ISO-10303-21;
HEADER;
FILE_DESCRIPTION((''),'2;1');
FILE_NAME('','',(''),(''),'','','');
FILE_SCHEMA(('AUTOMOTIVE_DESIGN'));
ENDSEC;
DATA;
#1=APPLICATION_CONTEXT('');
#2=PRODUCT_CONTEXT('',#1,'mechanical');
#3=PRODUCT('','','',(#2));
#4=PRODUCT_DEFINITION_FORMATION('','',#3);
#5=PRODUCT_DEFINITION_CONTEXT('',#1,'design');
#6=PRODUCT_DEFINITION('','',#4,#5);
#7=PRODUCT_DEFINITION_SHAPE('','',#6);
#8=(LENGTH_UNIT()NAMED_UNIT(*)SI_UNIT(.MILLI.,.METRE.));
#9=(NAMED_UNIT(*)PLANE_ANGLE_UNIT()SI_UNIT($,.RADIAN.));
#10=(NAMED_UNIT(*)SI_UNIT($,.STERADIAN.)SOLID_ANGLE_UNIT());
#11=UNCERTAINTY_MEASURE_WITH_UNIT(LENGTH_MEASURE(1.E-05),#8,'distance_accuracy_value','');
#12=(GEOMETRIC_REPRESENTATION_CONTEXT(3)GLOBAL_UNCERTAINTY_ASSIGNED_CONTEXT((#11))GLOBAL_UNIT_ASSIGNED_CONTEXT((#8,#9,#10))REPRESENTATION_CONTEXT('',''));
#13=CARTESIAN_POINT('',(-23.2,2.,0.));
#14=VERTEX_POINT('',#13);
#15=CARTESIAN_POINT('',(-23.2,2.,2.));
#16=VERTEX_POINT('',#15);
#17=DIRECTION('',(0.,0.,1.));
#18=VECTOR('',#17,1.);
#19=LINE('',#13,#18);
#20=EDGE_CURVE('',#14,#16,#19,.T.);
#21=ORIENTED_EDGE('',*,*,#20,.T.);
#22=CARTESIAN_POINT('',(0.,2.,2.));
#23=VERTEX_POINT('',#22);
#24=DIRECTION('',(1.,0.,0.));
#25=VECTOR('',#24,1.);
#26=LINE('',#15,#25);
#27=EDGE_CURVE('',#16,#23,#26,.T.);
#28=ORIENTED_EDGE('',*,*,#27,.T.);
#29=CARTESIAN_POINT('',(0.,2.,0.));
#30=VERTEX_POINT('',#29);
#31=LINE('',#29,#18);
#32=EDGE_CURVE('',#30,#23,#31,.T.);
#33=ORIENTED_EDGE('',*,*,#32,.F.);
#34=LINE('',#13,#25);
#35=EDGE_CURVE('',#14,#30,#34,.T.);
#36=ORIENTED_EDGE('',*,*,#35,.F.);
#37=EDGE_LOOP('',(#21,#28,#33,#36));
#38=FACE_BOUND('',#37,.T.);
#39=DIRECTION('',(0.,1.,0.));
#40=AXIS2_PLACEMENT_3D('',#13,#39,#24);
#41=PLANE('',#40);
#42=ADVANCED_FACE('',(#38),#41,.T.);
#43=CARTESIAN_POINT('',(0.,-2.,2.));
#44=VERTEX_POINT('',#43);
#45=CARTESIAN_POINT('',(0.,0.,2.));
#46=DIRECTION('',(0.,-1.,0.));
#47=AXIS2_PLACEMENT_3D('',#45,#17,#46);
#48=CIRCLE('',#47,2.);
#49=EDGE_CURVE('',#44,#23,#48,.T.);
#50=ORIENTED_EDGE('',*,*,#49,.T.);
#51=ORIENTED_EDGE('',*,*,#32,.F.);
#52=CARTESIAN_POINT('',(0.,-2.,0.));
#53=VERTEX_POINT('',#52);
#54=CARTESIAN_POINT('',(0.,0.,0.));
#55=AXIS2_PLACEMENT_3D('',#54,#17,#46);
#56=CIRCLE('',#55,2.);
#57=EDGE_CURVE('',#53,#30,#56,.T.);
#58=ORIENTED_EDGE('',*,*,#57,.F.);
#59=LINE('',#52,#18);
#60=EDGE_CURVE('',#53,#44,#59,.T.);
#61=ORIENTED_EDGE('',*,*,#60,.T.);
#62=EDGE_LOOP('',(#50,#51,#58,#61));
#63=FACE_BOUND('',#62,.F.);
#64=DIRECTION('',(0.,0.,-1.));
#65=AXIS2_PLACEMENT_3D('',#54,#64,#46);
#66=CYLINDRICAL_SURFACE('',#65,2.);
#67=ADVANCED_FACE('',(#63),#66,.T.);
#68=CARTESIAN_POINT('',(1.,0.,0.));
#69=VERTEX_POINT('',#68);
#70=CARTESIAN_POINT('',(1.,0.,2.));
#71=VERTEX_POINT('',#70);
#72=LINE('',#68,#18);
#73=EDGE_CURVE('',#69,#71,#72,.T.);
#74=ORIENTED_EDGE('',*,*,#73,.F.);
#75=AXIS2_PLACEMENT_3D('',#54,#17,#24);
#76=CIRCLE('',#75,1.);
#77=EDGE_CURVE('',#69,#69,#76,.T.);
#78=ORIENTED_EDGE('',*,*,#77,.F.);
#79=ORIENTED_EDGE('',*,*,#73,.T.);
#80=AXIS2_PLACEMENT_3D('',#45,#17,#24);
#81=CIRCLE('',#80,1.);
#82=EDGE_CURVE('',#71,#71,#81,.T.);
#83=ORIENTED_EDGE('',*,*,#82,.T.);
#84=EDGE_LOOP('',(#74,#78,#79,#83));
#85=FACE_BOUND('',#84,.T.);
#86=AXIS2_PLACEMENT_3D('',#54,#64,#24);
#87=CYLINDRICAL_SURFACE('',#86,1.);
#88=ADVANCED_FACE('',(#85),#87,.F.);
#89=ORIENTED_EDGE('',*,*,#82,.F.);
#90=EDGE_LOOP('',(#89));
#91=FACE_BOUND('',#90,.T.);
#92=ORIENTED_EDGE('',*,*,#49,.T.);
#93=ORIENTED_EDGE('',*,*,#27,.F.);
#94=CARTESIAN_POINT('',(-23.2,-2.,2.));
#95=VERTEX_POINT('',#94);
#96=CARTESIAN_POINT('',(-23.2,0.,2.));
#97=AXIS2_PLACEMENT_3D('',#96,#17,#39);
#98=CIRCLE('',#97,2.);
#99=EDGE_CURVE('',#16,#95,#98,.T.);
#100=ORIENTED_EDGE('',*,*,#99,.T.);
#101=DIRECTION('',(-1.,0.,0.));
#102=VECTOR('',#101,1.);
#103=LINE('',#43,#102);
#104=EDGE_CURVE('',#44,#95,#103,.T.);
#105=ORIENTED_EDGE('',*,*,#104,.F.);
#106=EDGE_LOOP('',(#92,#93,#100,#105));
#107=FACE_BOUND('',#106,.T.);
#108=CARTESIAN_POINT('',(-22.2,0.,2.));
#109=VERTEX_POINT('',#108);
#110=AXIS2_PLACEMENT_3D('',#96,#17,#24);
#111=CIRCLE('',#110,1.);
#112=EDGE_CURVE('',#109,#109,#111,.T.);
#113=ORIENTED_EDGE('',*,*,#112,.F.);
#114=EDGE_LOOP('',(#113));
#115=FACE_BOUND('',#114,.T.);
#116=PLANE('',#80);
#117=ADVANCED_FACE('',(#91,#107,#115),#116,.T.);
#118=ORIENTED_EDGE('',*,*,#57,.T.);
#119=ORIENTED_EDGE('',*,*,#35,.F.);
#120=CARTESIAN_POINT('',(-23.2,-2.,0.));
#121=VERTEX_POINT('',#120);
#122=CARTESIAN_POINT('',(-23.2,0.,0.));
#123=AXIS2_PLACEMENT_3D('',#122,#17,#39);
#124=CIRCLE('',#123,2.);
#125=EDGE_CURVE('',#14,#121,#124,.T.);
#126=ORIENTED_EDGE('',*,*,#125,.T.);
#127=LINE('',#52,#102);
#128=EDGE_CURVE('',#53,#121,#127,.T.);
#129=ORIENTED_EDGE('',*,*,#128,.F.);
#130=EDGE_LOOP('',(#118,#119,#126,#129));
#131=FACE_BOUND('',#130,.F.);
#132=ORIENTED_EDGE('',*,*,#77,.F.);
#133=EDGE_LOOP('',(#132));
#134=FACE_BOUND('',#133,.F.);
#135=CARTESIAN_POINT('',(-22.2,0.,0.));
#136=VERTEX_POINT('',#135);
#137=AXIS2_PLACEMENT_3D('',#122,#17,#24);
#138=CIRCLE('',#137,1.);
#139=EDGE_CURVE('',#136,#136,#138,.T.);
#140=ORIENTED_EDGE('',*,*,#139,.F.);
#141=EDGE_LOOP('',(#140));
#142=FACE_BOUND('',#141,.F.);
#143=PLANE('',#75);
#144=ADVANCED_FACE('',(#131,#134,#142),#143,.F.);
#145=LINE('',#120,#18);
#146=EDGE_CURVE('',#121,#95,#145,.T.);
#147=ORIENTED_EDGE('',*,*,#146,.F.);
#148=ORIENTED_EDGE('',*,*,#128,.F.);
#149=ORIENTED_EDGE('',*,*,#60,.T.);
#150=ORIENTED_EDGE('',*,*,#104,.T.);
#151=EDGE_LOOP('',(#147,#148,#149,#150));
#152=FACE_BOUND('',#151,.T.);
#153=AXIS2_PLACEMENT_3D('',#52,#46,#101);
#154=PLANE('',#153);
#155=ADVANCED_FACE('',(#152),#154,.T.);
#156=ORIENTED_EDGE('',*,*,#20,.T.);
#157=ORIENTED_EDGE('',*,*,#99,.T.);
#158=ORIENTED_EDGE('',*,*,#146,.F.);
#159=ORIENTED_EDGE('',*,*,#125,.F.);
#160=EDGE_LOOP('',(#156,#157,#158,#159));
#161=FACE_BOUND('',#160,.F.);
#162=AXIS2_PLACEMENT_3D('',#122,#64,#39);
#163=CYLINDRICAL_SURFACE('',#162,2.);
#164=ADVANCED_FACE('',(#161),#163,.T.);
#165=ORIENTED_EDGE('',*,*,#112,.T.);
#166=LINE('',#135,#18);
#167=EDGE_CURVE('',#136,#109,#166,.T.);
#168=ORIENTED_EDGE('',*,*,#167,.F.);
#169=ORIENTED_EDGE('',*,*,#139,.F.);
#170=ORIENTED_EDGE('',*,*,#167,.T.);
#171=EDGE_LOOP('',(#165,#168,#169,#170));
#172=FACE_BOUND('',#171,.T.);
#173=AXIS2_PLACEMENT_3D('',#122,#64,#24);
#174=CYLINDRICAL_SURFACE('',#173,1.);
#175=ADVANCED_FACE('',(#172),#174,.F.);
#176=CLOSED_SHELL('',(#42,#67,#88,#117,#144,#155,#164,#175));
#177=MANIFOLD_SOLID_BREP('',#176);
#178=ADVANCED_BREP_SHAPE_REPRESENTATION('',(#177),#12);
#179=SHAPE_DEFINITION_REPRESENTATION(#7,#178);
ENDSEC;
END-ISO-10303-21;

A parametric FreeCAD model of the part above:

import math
import FreeCAD as App
import Part
import Sketcher
from FreeCAD import Vector

doc = App.newDocument("Part")
params = doc.addObject("Spreadsheet::Sheet", "Params")
for row, (alias, value) in enumerate([
    ("sketch1_diameter", "2 mm"),
    ("sketch1_radius", "2 mm"),
    ("sketch1_width", "23.2 mm"),
    ("pad1_length", "2 mm"),
], start=1):
    params.set(f"A{row}", alias)
    params.set(f"B{row}", "=" + value)
    params.setAlias(f"B{row}", alias)

body = doc.addObject("PartDesign::Body", "Body")

# Sketch on XY plane
sketch1 = doc.addObject("Sketcher::SketchObject", "Sketch")
body.addObject(sketch1)
sketch1.AttachmentSupport = (doc.XY_Plane, [""])
sketch1.MapMode = "FlatFace"
sketch1.addGeometry([
    Part.LineSegment(Vector(0, 2, 0), Vector(-23.2, 2, 0)),  # 0
    Part.ArcOfCircle(Part.Circle(Vector(-23.2, 0, 0), Vector(0, 0, 1), 2), math.radians(90), math.radians(270)),  # 1
    Part.LineSegment(Vector(-23.2, -2, 0), Vector(0, -2, 0)),  # 2
    Part.ArcOfCircle(Part.Circle(Vector(0, 0, 0), Vector(0, 0, 1), 2), math.radians(-90), math.radians(90)),  # 3
    Part.Circle(Vector(-23.2, 0, 0), Vector(0, 0, 1), 1),  # 4
    Part.Circle(Vector(0, 0, 0), Vector(0, 0, 1), 1),  # 5
], False)
sketch1.addConstraint([
    Sketcher.Constraint("Tangent", 0, 2, 1, 1),
    Sketcher.Constraint("Tangent", 1, 2, 2, 1),
    Sketcher.Constraint("Tangent", 2, 2, 3, 1),
    Sketcher.Constraint("Tangent", 3, 2, 0, 1),
    Sketcher.Constraint("Horizontal", 0),
    Sketcher.Constraint("Horizontal", 2),
    Sketcher.Constraint("Coincident", 3, 3, -1, 1),
    Sketcher.Constraint("Coincident", 5, 3, -1, 1),
    Sketcher.Constraint("Coincident", 4, 3, 1, 3),
    Sketcher.Constraint("Equal", 4, 5),
    Sketcher.Constraint("Diameter", 4, 2.0),
    Sketcher.Constraint("Radius", 1, 2.0),
    Sketcher.Constraint("DistanceX", 0, 2, 0, 1, 23.2),
])
sketch1.setExpression("Constraints[10]", "Params.sketch1_diameter")
sketch1.setExpression("Constraints[11]", "Params.sketch1_radius")
sketch1.setExpression("Constraints[12]", "Params.sketch1_width")
pad1 = doc.addObject("PartDesign::Pad", "Pad")
body.addObject(pad1)
pad1.Profile = sketch1
pad1.setExpression("Length", "Params.pad1_length")

doc.recompute()
